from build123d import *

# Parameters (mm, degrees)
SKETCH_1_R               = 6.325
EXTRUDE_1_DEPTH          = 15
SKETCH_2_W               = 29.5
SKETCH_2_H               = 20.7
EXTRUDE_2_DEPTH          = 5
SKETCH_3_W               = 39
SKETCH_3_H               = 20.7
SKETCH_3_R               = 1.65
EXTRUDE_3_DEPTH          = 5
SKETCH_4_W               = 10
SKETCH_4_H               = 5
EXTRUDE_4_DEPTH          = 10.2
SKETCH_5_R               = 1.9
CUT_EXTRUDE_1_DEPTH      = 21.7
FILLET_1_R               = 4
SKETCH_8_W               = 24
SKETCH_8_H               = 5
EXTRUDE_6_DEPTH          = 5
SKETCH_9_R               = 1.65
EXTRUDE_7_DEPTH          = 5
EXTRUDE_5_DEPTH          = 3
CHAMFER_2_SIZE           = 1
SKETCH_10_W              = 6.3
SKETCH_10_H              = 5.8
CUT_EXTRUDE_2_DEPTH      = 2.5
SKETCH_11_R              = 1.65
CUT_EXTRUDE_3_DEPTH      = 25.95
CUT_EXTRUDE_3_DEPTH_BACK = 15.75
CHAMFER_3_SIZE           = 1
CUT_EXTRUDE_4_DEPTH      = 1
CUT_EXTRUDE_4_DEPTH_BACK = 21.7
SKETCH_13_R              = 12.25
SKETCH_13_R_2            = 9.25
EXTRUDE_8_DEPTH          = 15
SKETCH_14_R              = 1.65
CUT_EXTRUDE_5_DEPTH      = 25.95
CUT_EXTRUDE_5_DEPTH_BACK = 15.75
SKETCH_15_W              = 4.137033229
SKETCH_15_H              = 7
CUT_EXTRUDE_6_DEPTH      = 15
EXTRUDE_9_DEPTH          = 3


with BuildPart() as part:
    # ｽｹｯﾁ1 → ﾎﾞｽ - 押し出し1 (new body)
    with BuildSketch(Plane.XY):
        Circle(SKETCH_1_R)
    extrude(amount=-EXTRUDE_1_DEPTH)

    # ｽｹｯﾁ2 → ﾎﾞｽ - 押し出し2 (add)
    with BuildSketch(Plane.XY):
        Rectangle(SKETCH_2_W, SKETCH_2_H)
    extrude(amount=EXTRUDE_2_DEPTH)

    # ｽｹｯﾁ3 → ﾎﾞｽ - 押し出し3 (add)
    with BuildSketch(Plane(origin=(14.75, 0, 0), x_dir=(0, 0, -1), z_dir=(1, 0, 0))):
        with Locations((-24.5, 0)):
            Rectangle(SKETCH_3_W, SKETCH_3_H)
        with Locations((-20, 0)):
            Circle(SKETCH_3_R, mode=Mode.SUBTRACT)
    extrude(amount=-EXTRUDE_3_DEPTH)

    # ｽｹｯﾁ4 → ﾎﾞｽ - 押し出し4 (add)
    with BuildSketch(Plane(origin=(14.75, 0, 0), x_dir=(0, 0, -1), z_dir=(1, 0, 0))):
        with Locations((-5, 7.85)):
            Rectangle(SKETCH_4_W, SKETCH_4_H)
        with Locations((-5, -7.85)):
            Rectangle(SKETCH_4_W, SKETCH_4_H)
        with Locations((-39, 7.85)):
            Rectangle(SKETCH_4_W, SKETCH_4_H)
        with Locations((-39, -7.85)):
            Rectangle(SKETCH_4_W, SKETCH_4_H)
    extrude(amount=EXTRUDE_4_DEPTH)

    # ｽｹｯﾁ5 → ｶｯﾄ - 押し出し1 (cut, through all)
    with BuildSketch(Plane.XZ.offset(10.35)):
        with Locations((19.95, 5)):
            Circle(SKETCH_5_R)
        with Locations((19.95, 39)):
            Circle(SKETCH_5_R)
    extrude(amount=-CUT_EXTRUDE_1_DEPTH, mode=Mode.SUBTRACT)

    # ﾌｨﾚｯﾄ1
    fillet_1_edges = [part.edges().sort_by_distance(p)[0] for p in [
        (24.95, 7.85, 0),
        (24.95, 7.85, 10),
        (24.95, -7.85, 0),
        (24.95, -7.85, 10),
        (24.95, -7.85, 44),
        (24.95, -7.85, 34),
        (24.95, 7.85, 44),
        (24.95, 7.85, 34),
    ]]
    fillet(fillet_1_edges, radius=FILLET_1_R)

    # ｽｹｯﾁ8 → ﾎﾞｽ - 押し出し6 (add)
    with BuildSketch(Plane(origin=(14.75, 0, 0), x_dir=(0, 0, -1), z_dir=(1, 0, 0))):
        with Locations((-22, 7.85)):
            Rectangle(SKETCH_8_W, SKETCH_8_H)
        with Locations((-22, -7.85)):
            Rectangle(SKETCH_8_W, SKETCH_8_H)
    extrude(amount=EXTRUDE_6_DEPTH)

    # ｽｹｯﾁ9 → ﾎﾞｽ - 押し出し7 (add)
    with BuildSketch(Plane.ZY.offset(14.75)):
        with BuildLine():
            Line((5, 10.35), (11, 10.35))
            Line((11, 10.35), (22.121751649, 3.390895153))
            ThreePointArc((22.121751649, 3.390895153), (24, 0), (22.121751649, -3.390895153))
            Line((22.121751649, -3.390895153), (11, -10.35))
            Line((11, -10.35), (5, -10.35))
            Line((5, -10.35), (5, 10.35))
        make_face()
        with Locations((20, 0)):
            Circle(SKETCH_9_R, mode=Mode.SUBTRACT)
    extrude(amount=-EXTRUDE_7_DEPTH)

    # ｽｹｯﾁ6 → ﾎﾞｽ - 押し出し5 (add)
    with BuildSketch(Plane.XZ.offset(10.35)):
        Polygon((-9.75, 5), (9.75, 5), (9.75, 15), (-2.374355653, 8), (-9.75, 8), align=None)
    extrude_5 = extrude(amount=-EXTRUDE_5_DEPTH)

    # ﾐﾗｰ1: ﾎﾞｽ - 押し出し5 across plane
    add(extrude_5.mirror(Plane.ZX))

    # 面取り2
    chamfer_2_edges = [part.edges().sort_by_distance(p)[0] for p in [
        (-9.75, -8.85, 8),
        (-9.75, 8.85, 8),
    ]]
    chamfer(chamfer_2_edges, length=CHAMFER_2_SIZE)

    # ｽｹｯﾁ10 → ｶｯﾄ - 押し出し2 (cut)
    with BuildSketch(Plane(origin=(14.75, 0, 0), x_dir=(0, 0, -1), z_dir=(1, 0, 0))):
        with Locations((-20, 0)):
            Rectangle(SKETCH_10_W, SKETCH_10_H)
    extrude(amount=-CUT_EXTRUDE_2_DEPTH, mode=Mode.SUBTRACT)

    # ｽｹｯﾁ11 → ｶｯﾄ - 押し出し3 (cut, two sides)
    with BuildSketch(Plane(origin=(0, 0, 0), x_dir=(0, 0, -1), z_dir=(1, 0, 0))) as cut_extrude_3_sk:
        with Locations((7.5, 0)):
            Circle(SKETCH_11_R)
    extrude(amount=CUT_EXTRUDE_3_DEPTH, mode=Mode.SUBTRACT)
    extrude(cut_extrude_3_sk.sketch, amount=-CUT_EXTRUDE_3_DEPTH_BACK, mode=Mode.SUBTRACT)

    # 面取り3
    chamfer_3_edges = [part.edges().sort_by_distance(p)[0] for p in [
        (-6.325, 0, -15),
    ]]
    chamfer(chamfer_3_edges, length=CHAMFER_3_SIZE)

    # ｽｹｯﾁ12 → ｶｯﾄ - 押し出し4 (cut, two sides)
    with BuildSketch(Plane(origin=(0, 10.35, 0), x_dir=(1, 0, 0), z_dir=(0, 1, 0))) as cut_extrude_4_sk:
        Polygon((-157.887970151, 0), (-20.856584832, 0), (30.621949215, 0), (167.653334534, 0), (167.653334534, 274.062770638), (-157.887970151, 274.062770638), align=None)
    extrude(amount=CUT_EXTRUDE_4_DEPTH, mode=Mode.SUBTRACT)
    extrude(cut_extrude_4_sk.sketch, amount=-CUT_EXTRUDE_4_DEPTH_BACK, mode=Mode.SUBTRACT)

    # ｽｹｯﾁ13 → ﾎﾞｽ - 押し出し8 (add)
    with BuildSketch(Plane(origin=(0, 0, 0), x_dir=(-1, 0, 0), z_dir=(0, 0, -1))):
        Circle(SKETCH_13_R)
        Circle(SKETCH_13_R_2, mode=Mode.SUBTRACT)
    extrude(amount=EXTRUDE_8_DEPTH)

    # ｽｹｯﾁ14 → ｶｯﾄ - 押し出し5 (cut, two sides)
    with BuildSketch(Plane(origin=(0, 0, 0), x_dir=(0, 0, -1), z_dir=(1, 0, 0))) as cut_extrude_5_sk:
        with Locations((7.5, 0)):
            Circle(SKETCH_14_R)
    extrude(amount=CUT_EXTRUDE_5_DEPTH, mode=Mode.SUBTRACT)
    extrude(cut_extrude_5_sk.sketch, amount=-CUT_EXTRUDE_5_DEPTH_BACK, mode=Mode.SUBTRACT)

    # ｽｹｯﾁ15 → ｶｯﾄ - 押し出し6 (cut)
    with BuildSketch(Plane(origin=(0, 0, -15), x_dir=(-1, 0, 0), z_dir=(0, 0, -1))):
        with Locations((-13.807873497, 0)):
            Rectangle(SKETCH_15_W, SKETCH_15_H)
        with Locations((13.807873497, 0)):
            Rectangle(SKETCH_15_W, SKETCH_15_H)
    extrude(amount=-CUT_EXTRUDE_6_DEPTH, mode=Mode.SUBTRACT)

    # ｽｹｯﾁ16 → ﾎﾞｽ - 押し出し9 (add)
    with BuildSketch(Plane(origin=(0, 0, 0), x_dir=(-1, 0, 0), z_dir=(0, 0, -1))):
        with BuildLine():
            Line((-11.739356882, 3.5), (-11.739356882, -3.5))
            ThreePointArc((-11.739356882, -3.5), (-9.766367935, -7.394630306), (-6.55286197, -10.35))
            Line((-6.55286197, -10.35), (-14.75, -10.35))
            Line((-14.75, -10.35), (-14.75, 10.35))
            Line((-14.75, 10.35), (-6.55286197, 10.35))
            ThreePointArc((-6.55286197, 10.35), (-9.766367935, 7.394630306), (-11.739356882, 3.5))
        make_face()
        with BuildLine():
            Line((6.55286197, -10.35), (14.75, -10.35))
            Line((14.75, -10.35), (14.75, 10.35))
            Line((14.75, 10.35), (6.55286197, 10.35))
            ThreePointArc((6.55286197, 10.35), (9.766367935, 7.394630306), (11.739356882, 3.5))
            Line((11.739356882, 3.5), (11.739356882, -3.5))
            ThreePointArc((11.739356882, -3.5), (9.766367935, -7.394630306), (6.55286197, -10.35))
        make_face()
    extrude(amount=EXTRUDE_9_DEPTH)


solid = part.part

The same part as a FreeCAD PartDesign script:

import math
import FreeCAD as App
import Part
import Sketcher
Q = App.Units.Quantity


def edges_at(feature, points):
    """Names of the edges that pass closest to the given points."""
    edges = feature.Shape.Edges
    near = lambda p: min(range(len(edges)), key=lambda i: edges[i].distToShape(Part.Vertex(*p))[0])
    return sorted({f"Edge{near(p) + 1}" for p in points})

doc = App.newDocument("Part")
body = doc.addObject("PartDesign::Body", "Body")

sketch1 = body.newObject("Sketcher::SketchObject", "Sketch")
sketch1.AttachmentSupport = (doc.getObject("XY_Plane"), [""])
sketch1.MapMode = "FlatFace"
sketch1.addGeometry(Part.Circle(App.Vector(0, 0, 0), App.Vector(0, 0, 1), 6), False)
sketch1.addConstraint(Sketcher.Constraint("Coincident", 0, 3, -1, 1))
sketch1.addConstraint(Sketcher.Constraint("Diameter", 0, Q("12.65 mm")))
pad1 = body.newObject("PartDesign::Pad", "Pad")
pad1.Profile = sketch1
pad1.Length = 15
pad1.Reversed = True

sketch2 = body.newObject("Sketcher::SketchObject", "Sketch001")
sketch2.AttachmentSupport = (doc.getObject("XY_Plane"), [""])
sketch2.MapMode = "FlatFace"
sketch2.addGeometry(Part.LineSegment(App.Vector(-15, 10, 0), App.Vector(-15, -10, 0)), False)
sketch2.addGeometry(Part.LineSegment(App.Vector(-15, -10, 0), App.Vector(15, -10, 0)), False)
sketch2.addGeometry(Part.LineSegment(App.Vector(15, -10, 0), App.Vector(15, 10, 0)), False)
sketch2.addGeometry(Part.LineSegment(App.Vector(15, 10, 0), App.Vector(-15, 10, 0)), False)
sketch2.addConstraint(Sketcher.Constraint("Coincident", 0, 2, 1, 1))
sketch2.addConstraint(Sketcher.Constraint("Coincident", 1, 2, 2, 1))
sketch2.addConstraint(Sketcher.Constraint("Coincident", 2, 2, 3, 1))
sketch2.addConstraint(Sketcher.Constraint("Coincident", 3, 2, 0, 1))
sketch2.addConstraint(Sketcher.Constraint("Vertical", 0))
sketch2.addConstraint(Sketcher.Constraint("Horizontal", 1))
sketch2.addConstraint(Sketcher.Constraint("Vertical", 2))
sketch2.addConstraint(Sketcher.Constraint("Horizontal", 3))
sketch2.addConstraint(Sketcher.Constraint("Symmetric", 0, 2, 2, 2, -1, 1))
sketch2.addConstraint(Sketcher.Constraint("DistanceX", 1, 1, 1, 2, Q("29.5 mm")))
sketch2.addConstraint(Sketcher.Constraint("DistanceY", 0, 2, 0, 1, Q("20.7 mm")))
pad2 = body.newObject("PartDesign::Pad", "Pad001")
pad2.Profile = sketch2
pad2.Length = 5

sketch3 = body.newObject("Sketcher::SketchObject", "Sketch002")
sketch3.AttachmentSupport = (doc.getObject("YZ_Plane"), [""])
sketch3.MapMode = "FlatFace"
sketch3.AttachmentOffset = App.Placement(App.Vector(0, 0, 14.75), App.Rotation())
sketch3.addGeometry(Part.LineSegment(App.Vector(10.3, 44, 0), App.Vector(-10.3, 44, 0)), False)
sketch3.addGeometry(Part.LineSegment(App.Vector(-10.3, 44, 0), App.Vector(-10.3, 5, 0)), False)
sketch3.addGeometry(Part.LineSegment(App.Vector(-10.3, 5, 0), App.Vector(10.3, 5, 0)), False)
sketch3.addGeometry(Part.LineSegment(App.Vector(10.3, 5, 0), App.Vector(10.3, 44, 0)), False)
sketch3.addGeometry(Part.Circle(App.Vector(0, 20, 0), App.Vector(0, 0, 1), 1.6), False)
sketch3.addConstraint(Sketcher.Constraint("Coincident", 0, 2, 1, 1))
sketch3.addConstraint(Sketcher.Constraint("Coincident", 1, 2, 2, 1))
sketch3.addConstraint(Sketcher.Constraint("Coincident", 2, 2, 3, 1))
sketch3.addConstraint(Sketcher.Constraint("Coincident", 3, 2, 0, 1))
sketch3.addConstraint(Sketcher.Constraint("Horizontal", 0))
sketch3.addConstraint(Sketcher.Constraint("Vertical", 1))
sketch3.addConstraint(Sketcher.Constraint("Horizontal", 2))
sketch3.addConstraint(Sketcher.Constraint("Vertical", 3))
sketch3.addConstraint(Sketcher.Constraint("PointOnObject", 4, 3, -2))
sketch3.addConstraint(Sketcher.Constraint("Diameter", 4, Q("3.3 mm")))
sketch3.addConstraint(Sketcher.Constraint("DistanceY", 1, 2, 1, 1, Q("39 mm")))
sketch3.addConstraint(Sketcher.Constraint("DistanceX", 0, 2, 0, 1, Q("20.7 mm")))
sketch3.addConstraint(Sketcher.Constraint("DistanceY", -1, 1, 4, 3, Q("20 mm")))
sketch3.addConstraint(Sketcher.Constraint("DistanceY", -1, 1, 0, 2, Q("44 mm")))
sketch3.addConstraint(Sketcher.Constraint("DistanceX", 0, 2, -1, 1, Q("10.35 mm")))
pad3 = body.newObject("PartDesign::Pad", "Pad002")
pad3.Profile = sketch3
pad3.Length = 5
pad3.Reversed = True

sketch4 = body.newObject("Sketcher::SketchObject", "Sketch003")
sketch4.AttachmentSupport = (doc.getObject("YZ_Plane"), [""])
sketch4.MapMode = "FlatFace"
sketch4.AttachmentOffset = App.Placement(App.Vector(0, 0, 14.75), App.Rotation())
sketch4.addGeometry(Part.LineSegment(App.Vector(10, 10, 0), App.Vector(5, 10, 0)), False)
sketch4.addGeometry(Part.LineSegment(App.Vector(5, 10, 0), App.Vector(5, 0, 0)), False)
sketch4.addGeometry(Part.LineSegment(App.Vector(5, 0, 0), App.Vector(10, 0, 0)), False)
sketch4.addGeometry(Part.LineSegment(App.Vector(10, 0, 0), App.Vector(10, 10, 0)), False)
sketch4.addGeometry(Part.LineSegment(App.Vector(-5, 10, 0), App.Vector(-10, 10, 0)), False)
sketch4.addGeometry(Part.LineSegment(App.Vector(-10, 10, 0), App.Vector(-10, 0, 0)), False)
sketch4.addGeometry(Part.LineSegment(App.Vector(-10, 0, 0), App.Vector(-5, 0, 0)), False)
sketch4.addGeometry(Part.LineSegment(App.Vector(-5, 0, 0), App.Vector(-5, 10, 0)), False)
sketch4.addGeometry(Part.LineSegment(App.Vector(10, 44, 0), App.Vector(5, 44, 0)), False)
sketch4.addGeometry(Part.LineSegment(App.Vector(5, 44, 0), App.Vector(5, 34, 0)), False)
sketch4.addGeometry(Part.LineSegment(App.Vector(5, 34, 0), App.Vector(10, 34, 0)), False)
sketch4.addGeometry(Part.LineSegment(App.Vector(10, 34, 0), App.Vector(10, 44, 0)), False)
sketch4.addGeometry(Part.LineSegment(App.Vector(-5, 44, 0), App.Vector(-10, 44, 0)), False)
sketch4.addGeometry(Part.LineSegment(App.Vector(-10, 44, 0), App.Vector(-10, 34, 0)), False)
sketch4.addGeometry(Part.LineSegment(App.Vector(-10, 34, 0), App.Vector(-5, 34, 0)), False)
sketch4.addGeometry(Part.LineSegment(App.Vector(-5, 34, 0), App.Vector(-5, 44, 0)), False)
sketch4.addConstraint(Sketcher.Constraint("Coincident", 0, 2, 1, 1))
sketch4.addConstraint(Sketcher.Constraint("Coincident", 1, 2, 2, 1))
sketch4.addConstraint(Sketcher.Constraint("Coincident", 2, 2, 3, 1))
sketch4.addConstraint(Sketcher.Constraint("Coincident", 3, 2, 0, 1))
sketch4.addConstraint(Sketcher.Constraint("Coincident", 4, 2, 5, 1))
sketch4.addConstraint(Sketcher.Constraint("Coincident", 5, 2, 6, 1))
sketch4.addConstraint(Sketcher.Constraint("Coincident", 6, 2, 7, 1))
sketch4.addConstraint(Sketcher.Constraint("Coincident", 7, 2, 4, 1))
sketch4.addConstraint(Sketcher.Constraint("Coincident", 8, 2, 9, 1))
sketch4.addConstraint(Sketcher.Constraint("Coincident", 9, 2, 10, 1))
sketch4.addConstraint(Sketcher.Constraint("Coincident", 10, 2, 11, 1))
sketch4.addConstraint(Sketcher.Constraint("Coincident", 11, 2, 8, 1))
sketch4.addConstraint(Sketcher.Constraint("Coincident", 12, 2, 13, 1))
sketch4.addConstraint(Sketcher.Constraint("Coincident", 13, 2, 14, 1))
sketch4.addConstraint(Sketcher.Constraint("Coincident", 14, 2, 15, 1))
sketch4.addConstraint(Sketcher.Constraint("Coincident", 15, 2, 12, 1))
sketch4.addConstraint(Sketcher.Constraint("Horizontal", 0))
sketch4.addConstraint(Sketcher.Constraint("Vertical", 1))
sketch4.addConstraint(Sketcher.Constraint("Horizontal", 2))
sketch4.addConstraint(Sketcher.Constraint("Vertical", 3))
sketch4.addConstraint(Sketcher.Constraint("Horizontal", 4))
sketch4.addConstraint(Sketcher.Constraint("Vertical", 5))
sketch4.addConstraint(Sketcher.Constraint("Horizontal", 6))
sketch4.addConstraint(Sketcher.Constraint("Vertical", 7))
sketch4.addConstraint(Sketcher.Constraint("Horizontal", 8))
sketch4.addConstraint(Sketcher.Constraint("Vertical", 9))
sketch4.addConstraint(Sketcher.Constraint("Horizontal", 10))
sketch4.addConstraint(Sketcher.Constraint("Vertical", 11))
sketch4.addConstraint(Sketcher.Constraint("Horizontal", 12))
sketch4.addConstraint(Sketcher.Constraint("Vertical", 13))
sketch4.addConstraint(Sketcher.Constraint("Horizontal", 14))
sketch4.addConstraint(Sketcher.Constraint("Vertical", 15))
sketch4.addConstraint(Sketcher.Constraint("Symmetric", 2, 2, 5, 2, -1, 1))
sketch4.addConstraint(Sketcher.Constraint("Symmetric", 1, 2, 6, 2, -2))
sketch4.addConstraint(Sketcher.Constraint("Symmetric", 11, 2, 12, 2, -2))
sketch4.addConstraint(Sketcher.Constraint("Symmetric", 9, 2, 14, 2, -2))
sketch4.addConstraint(Sketcher.Constraint("Horizontal", 3, 2, 4, 2))
sketch4.addConstraint(Sketcher.Constraint("Vertical", 1, 2, 8, 2))
sketch4.addConstraint(Sketcher.Constraint("Vertical", 3, 2, 10, 2))
sketch4.addConstraint(Sketcher.Constraint("Equal", 7, 9))
sketch4.addConstraint(Sketcher.Constraint("DistanceX", 0, 2, 0, 1, Q("5 mm")))
sketch4.addConstraint(Sketcher.Constraint("DistanceY", 1, 2, 1, 1, Q("10 mm")))
sketch4.addConstraint(Sketcher.Constraint("DistanceY", -1, 1, 8, 2, Q("44 mm")))
sketch4.addConstraint(Sketcher.Constraint("DistanceX", 4, 2, 0, 2, Q("15.7 mm")))
pad4 = body.newObject("PartDesign::Pad", "Pad003")
pad4.Profile = sketch4
pad4.Length = 10.2

sketch5 = body.newObject("Sketcher::SketchObject", "Sketch004")
sketch5.AttachmentSupport = (doc.getObject("XZ_Plane"), [""])
sketch5.MapMode = "FlatFace"
sketch5.AttachmentOffset = App.Placement(App.Vector(0, 0, 10.35), App.Rotation())
sketch5.addGeometry(Part.Circle(App.Vector(19.9, 5, 0), App.Vector(0, 0, 1), 1.9), False)
sketch5.addGeometry(Part.Circle(App.Vector(19.9, 39, 0), App.Vector(0, 0, 1), 1.9), False)
sketch5.addConstraint(Sketcher.Constraint("Equal", 0, 1))
sketch5.addConstraint(Sketcher.Constraint("Vertical", 0, 3, 1, 3))
sketch5.addConstraint(Sketcher.Constraint("Diameter", 0, Q("3.8 mm")))
sketch5.addConstraint(Sketcher.Constraint("DistanceY", -1, 1, 0, 3, Q("5 mm")))
sketch5.addConstraint(Sketcher.Constraint("DistanceY", -1, 1, 1, 3, Q("39 mm")))
sketch5.addConstraint(Sketcher.Constraint("DistanceX", -1, 1, 0, 3, Q("19.95 mm")))
pocket1 = body.newObject("PartDesign::Pocket", "Pocket")
pocket1.Profile = sketch5
pocket1.Type = "ThroughAll"
doc.recompute()

fillet = body.newObject("PartDesign::Fillet", "Fillet")
fillet.Base = (pocket1, edges_at(pocket1, [
    (24.95, 7.85, 0),
    (24.95, 7.85, 10),
    (24.95, -7.85, 0),
    (24.95, -7.85, 10),
    (24.95, -7.85, 44),
    (24.95, -7.85, 34),
    (24.95, 7.85, 44),
    (24.95, 7.85, 34),
]))
fillet.Radius = 4

sketch6 = body.newObject("Sketcher::SketchObject", "Sketch005")
sketch6.AttachmentSupport = (doc.getObject("YZ_Plane"), [""])
sketch6.MapMode = "FlatFace"
sketch6.AttachmentOffset = App.Placement(App.Vector(0, 0, 14.75), App.Rotation())
sketch6.addGeometry(Part.LineSegment(App.Vector(10, 34, 0), App.Vector(5, 34, 0)), False)
sketch6.addGeometry(Part.LineSegment(App.Vector(5, 34, 0), App.Vector(5, 10, 0)), False)
sketch6.addGeometry(Part.LineSegment(App.Vector(5, 10, 0), App.Vector(10, 10, 0)), False)
sketch6.addGeometry(Part.LineSegment(App.Vector(10, 10, 0), App.Vector(10, 34, 0)), False)
sketch6.addGeometry(Part.LineSegment(App.Vector(-5, 34, 0), App.Vector(-10, 34, 0)), False)
sketch6.addGeometry(Part.LineSegment(App.Vector(-10, 34, 0), App.Vector(-10, 10, 0)), False)
sketch6.addGeometry(Part.LineSegment(App.Vector(-10, 10, 0), App.Vector(-5, 10, 0)), False)
sketch6.addGeometry(Part.LineSegment(App.Vector(-5, 10, 0), App.Vector(-5, 34, 0)), False)
sketch6.addConstraint(Sketcher.Constraint("Coincident", 0, 2, 1, 1))
sketch6.addConstraint(Sketcher.Constraint("Coincident", 1, 2, 2, 1))
sketch6.addConstraint(Sketcher.Constraint("Coincident", 2, 2, 3, 1))
sketch6.addConstraint(Sketcher.Constraint("Coincident", 3, 2, 0, 1))
sketch6.addConstraint(Sketcher.Constraint("Coincident", 4, 2, 5, 1))
sketch6.addConstraint(Sketcher.Constraint("Coincident", 5, 2, 6, 1))
sketch6.addConstraint(Sketcher.Constraint("Coincident", 6, 2, 7, 1))
sketch6.addConstraint(Sketcher.Constraint("Coincident", 7, 2, 4, 1))
sketch6.addConstraint(Sketcher.Constraint("Horizontal", 0))
sketch6.addConstraint(Sketcher.Constraint("Vertical", 1))
sketch6.addConstraint(Sketcher.Constraint("Horizontal", 2))
sketch6.addConstraint(Sketcher.Constraint("Vertical", 3))
sketch6.addConstraint(Sketcher.Constraint("Horizontal", 4))
sketch6.addConstraint(Sketcher.Constraint("Vertical", 5))
sketch6.addConstraint(Sketcher.Constraint("Horizontal", 6))
sketch6.addConstraint(Sketcher.Constraint("Vertical", 7))
sketch6.addConstraint(Sketcher.Constraint("Symmetric", 3, 2, 4, 2, -2))
sketch6.addConstraint(Sketcher.Constraint("Symmetric", 1, 2, 6, 2, -2))
sketch6.addConstraint(Sketcher.Constraint("DistanceX", 0, 2, 0, 1, Q("5 mm")))
sketch6.addConstraint(Sketcher.Constraint("DistanceY", 1, 2, 1, 1, Q("24 mm")))
sketch6.addConstraint(Sketcher.Constraint("DistanceY", -1, 1, 0, 2, Q("34 mm")))
sketch6.addConstraint(Sketcher.Constraint("DistanceX", 4, 2, 0, 2, Q("15.7 mm")))
pad5 = body.newObject("PartDesign::Pad", "Pad004")
pad5.Profile = sketch6
pad5.Length = 5

sketch7 = body.newObject("Sketcher::SketchObject", "Sketch006")
sketch7.AttachmentSupport = (doc.getObject("YZ_Plane"), [""])
sketch7.MapMode = "FlatFace"
sketch7.AttachmentOffset = App.Placement(App.Vector(0, 0, -14.75), App.Rotation())
sketch7.addGeometry(Part.LineSegment(App.Vector(10.3, 11, 0), App.Vector(10.3, 5, 0)), False)
sketch7.addGeometry(Part.LineSegment(App.Vector(10.3, 5, 0), App.Vector(-10.3, 5, 0)), False)
sketch7.addGeometry(Part.LineSegment(App.Vector(-10.3, 5, 0), App.Vector(-10.3, 11, 0)), False)
sketch7.addGeometry(Part.LineSegment(App.Vector(-10.3, 11, 0), App.Vector(-3.4, 22.1, 0)), False)
sketch7.addGeometry(Part.ArcOfCircle(Part.Circle(App.Vector(0, 20, 0), App.Vector(0, 0, 1), 4), math.radians(32), math.radians(148)), False)
sketch7.addGeometry(Part.LineSegment(App.Vector(3.4, 22.1, 0), App.Vector(10.3, 11, 0)), False)
sketch7.addGeometry(Part.Circle(App.Vector(0, 20, 0), App.Vector(0, 0, 1), 1.6), False)
sketch7.addConstraint(Sketcher.Constraint("Coincident", 0, 2, 1, 1))
sketch7.addConstraint(Sketcher.Constraint("Coincident", 1, 2, 2, 1))
sketch7.addConstraint(Sketcher.Constraint("Coincident", 2, 2, 3, 1))
sketch7.addConstraint(Sketcher.Constraint("Tangent", 3, 2, 4, 2))
sketch7.addConstraint(Sketcher.Constraint("Tangent", 4, 1, 5, 1))
sketch7.addConstraint(Sketcher.Constraint("Coincident", 5, 2, 0, 1))
sketch7.addConstraint(Sketcher.Constraint("Vertical", 0))
sketch7.addConstraint(Sketcher.Constraint("Horizontal", 1))
sketch7.addConstraint(Sketcher.Constraint("Vertical", 2))
sketch7.addConstraint(Sketcher.Constraint("Coincident", 6, 3, 4, 3))
sketch7.addConstraint(Sketcher.Constraint("Symmetric", 3, 2, 4, 1, -2))
sketch7.addConstraint(Sketcher.Constraint("Horizontal", 2, 2, 5, 2))
sketch7.addConstraint(Sketcher.Constraint("Radius", 4, Q("4 mm")))
sketch7.addConstraint(Sketcher.Constraint("Diameter", 6, Q("3.3 mm")))
sketch7.addConstraint(Sketcher.Constraint("DistanceY", 0, 2, 0, 1, Q("6 mm")))
sketch7.addConstraint(Sketcher.Constraint("DistanceX", 1, 2, 1, 1, Q("20.7 mm")))
sketch7.addConstraint(Sketcher.Constraint("DistanceY", -1, 1, 4, 3, Q("20 mm")))
sketch7.addConstraint(Sketcher.Constraint("DistanceY", -1, 1, 0, 2, Q("5 mm")))
pad6 = body.newObject("PartDesign::Pad", "Pad005")
pad6.Profile = sketch7
pad6.Length = 5

sketch8 = body.newObject("Sketcher::SketchObject", "Sketch007")
sketch8.AttachmentSupport = (doc.getObject("XZ_Plane"), [""])
sketch8.MapMode = "FlatFace"
sketch8.AttachmentOffset = App.Placement(App.Vector(0, 0, 10.35), App.Rotation())
sketch8.addGeometry(Part.LineSegment(App.Vector(-9.8, 5, 0), App.Vector(9.8, 5, 0)), False)
sketch8.addGeometry(Part.LineSegment(App.Vector(9.8, 5, 0), App.Vector(9.8, 15, 0)), False)
sketch8.addGeometry(Part.LineSegment(App.Vector(9.8, 15, 0), App.Vector(-2.4, 8, 0)), False)
sketch8.addGeometry(Part.LineSegment(App.Vector(-2.4, 8, 0), App.Vector(-9.8, 8, 0)), False)
sketch8.addGeometry(Part.LineSegment(App.Vector(-9.8, 8, 0), App.Vector(-9.8, 5, 0)), False)
sketch8.addConstraint(Sketcher.Constraint("Coincident", 0, 2, 1, 1))
sketch8.addConstraint(Sketcher.Constraint("Coincident", 1, 2, 2, 1))
sketch8.addConstraint(Sketcher.Constraint("Coincident", 2, 2, 3, 1))
sketch8.addConstraint(Sketcher.Constraint("Coincident", 3, 2, 4, 1))
sketch8.addConstraint(Sketcher.Constraint("Coincident", 4, 2, 0, 1))
sketch8.addConstraint(Sketcher.Constraint("Horizontal", 0))
sketch8.addConstraint(Sketcher.Constraint("Vertical", 1))
sketch8.addConstraint(Sketcher.Constraint("Horizontal", 3))
sketch8.addConstraint(Sketcher.Constraint("Vertical", 4))
sketch8.addConstraint(Sketcher.Constraint("DistanceY", 1, 1, 1, 2, Q("10 mm")))
sketch8.addConstraint(Sketcher.Constraint("DistanceY", 4, 2, 4, 1, Q("3 mm")))
sketch8.addConstraint(Sketcher.Constraint("Angle", 2, Q("-150 deg")))
sketch8.addConstraint(Sketcher.Constraint("DistanceX", 0, 1, 0, 2, Q("19.5 mm")))
sketch8.addConstraint(Sketcher.Constraint("DistanceY", -1, 1, 0, 2, Q("5 mm")))
sketch8.addConstraint(Sketcher.Constraint("DistanceX", -1, 1, 0, 2, Q("9.75 mm")))
pad7 = body.newObject("PartDesign::Pad", "Pad006")
pad7.Profile = sketch8
pad7.Length = 3
pad7.Reversed = True
doc.recompute()

mirrored = body.newObject("PartDesign::Mirrored", "Mirrored")
mirrored.Originals = [pad7]
mirrored.MirrorPlane = (doc.getObject("XZ_Plane"), [""])
body.Tip = mirrored
doc.recompute()

chamfer = body.newObject("PartDesign::Chamfer", "Chamfer")
chamfer.Base = (mirrored, edges_at(mirrored, [(-9.75, -8.85, 8), (-9.75, 8.85, 8)]))
chamfer.Size = 1

sketch9 = body.newObject("Sketcher::SketchObject", "Sketch008")
sketch9.AttachmentSupport = (doc.getObject("YZ_Plane"), [""])
sketch9.MapMode = "FlatFace"
sketch9.AttachmentOffset = App.Placement(App.Vector(0, 0, 14.75), App.Rotation())
sketch9.addGeometry(Part.LineSegment(App.Vector(3, 23, 0), App.Vector(-3, 23, 0)), False)
sketch9.addGeometry(Part.LineSegment(App.Vector(-3, 23, 0), App.Vector(-3, 17, 0)), False)
sketch9.addGeometry(Part.LineSegment(App.Vector(-3, 17, 0), App.Vector(3, 17, 0)), False)
sketch9.addGeometry(Part.LineSegment(App.Vector(3, 17, 0), App.Vector(3, 23, 0)), False)
sketch9.addConstraint(Sketcher.Constraint("Coincident", 0, 2, 1, 1))
sketch9.addConstraint(Sketcher.Constraint("Coincident", 1, 2, 2, 1))
sketch9.addConstraint(Sketcher.Constraint("Coincident", 2, 2, 3, 1))
sketch9.addConstraint(Sketcher.Constraint("Coincident", 3, 2, 0, 1))
sketch9.addConstraint(Sketcher.Constraint("Horizontal", 0))
sketch9.addConstraint(Sketcher.Constraint("Vertical", 1))
sketch9.addConstraint(Sketcher.Constraint("Horizontal", 2))
sketch9.addConstraint(Sketcher.Constraint("Vertical", 3))
sketch9.addConstraint(Sketcher.Constraint("DistanceX", 0, 2, 0, 1, Q("5.8 mm")))
sketch9.addConstraint(Sketcher.Constraint("DistanceY", 1, 2, 1, 1, Q("6.3 mm")))
sketch9.addConstraint(Sketcher.Constraint("DistanceX", 0, 2, -1, 1, Q("2.9 mm")))
sketch9.addConstraint(Sketcher.Constraint("DistanceY", -1, 1, 0, 2, Q("23.15 mm")))
pocket2 = body.newObject("PartDesign::Pocket", "Pocket001")
pocket2.Profile = sketch9
pocket2.Length = 2.5

sketch10 = body.newObject("Sketcher::SketchObject", "Sketch009")
sketch10.AttachmentSupport = (doc.getObject("YZ_Plane"), [""])
sketch10.MapMode = "FlatFace"
sketch10.addGeometry(Part.Circle(App.Vector(0, -7.5, 0), App.Vector(0, 0, 1), 1.6), False)
sketch10.addConstraint(Sketcher.Constraint("PointOnObject", 0, 3, -2))
sketch10.addConstraint(Sketcher.Constraint("Diameter", 0, Q("3.3 mm")))
sketch10.addConstraint(Sketcher.Constraint("DistanceY", 0, 3, -1, 1, Q("7.5 mm")))
pocket3 = body.newObject("PartDesign::Pocket", "Pocket002")
pocket3.Profile = sketch10
pocket3.Type = "ThroughAll"
pocket3.Midplane = True
doc.recompute()

chamfer2 = body.newObject("PartDesign::Chamfer", "Chamfer001")
chamfer2.Base = (pocket3, edges_at(pocket3, [(-6.325, 0, -15)]))
chamfer2.Size = 1

sketch11 = body.newObject("Sketcher::SketchObject", "Sketch010")
sketch11.AttachmentSupport = (doc.getObject("XZ_Plane"), [""])
sketch11.MapMode = "FlatFace"
sketch11.AttachmentOffset = App.Placement(App.Vector(0, 0, -10.35), App.Rotation())
sketch11.addGeometry(Part.LineSegment(App.Vector(-158, 0, 0), App.Vector(168, 0, 0)), False)
sketch11.addGeometry(Part.LineSegment(App.Vector(168, 0, 0), App.Vector(168, -274, 0)), False)
sketch11.addGeometry(Part.LineSegment(App.Vector(168, -274, 0), App.Vector(-158, -274, 0)), False)
sketch11.addGeometry(Part.LineSegment(App.Vector(-158, -274, 0), App.Vector(-158, 0, 0)), False)
sketch11.addConstraint(Sketcher.Constraint("Coincident", 0, 2, 1, 1))
sketch11.addConstraint(Sketcher.Constraint("Coincident", 1, 2, 2, 1))
sketch11.addConstraint(Sketcher.Constraint("Coincident", 2, 2, 3, 1))
sketch11.addConstraint(Sketcher.Constraint("Coincident", 3, 2, 0, 1))
sketch11.addConstraint(Sketcher.Constraint("Horizontal", 0))
sketch11.addConstraint(Sketcher.Constraint("Vertical", 1))
sketch11.addConstraint(Sketcher.Constraint("Horizontal", 2))
sketch11.addConstraint(Sketcher.Constraint("Vertical", 3))
sketch11.addConstraint(Sketcher.Constraint("PointOnObject", 0, 2, -1))
sketch11.addConstraint(Sketcher.Constraint("DistanceY", 1, 2, 1, 1, Q("274.062771 mm")))
sketch11.addConstraint(Sketcher.Constraint("DistanceX", 0, 1, 0, 2, Q("325.541305 mm")))
sketch11.addConstraint(Sketcher.Constraint("DistanceX", 2, 2, -1, 1, Q("157.88797 mm")))
pocket4 = body.newObject("PartDesign::Pocket", "Pocket003")
pocket4.Profile = sketch11
pocket4.Type = "ThroughAll"
pocket4.Midplane = True

sketch12 = body.newObject("Sketcher::SketchObject", "Sketch011")
sketch12.AttachmentSupport = (doc.getObject("XY_Plane"), [""])
sketch12.MapMode = "FlatFace"
sketch12.addGeometry(Part.Circle(App.Vector(0, 0, 0), App.Vector(0, 0, 1), 12), False)
sketch12.addGeometry(Part.Circle(App.Vector(0, 0, 0), App.Vector(0, 0, 1), 9), False)
sketch12.addConstraint(Sketcher.Constraint("Coincident", 0, 3, -1, 1))
sketch12.addConstraint(Sketcher.Constraint("Coincident", 1, 3, -1, 1))
sketch12.addConstraint(Sketcher.Constraint("Diameter", 0, Q("24.5 mm")))
sketch12.addConstraint(Sketcher.Constraint("Diameter", 1, Q("18.5 mm")))
pad8 = body.newObject("PartDesign::Pad", "Pad007")
pad8.Profile = sketch12
pad8.Length = 15
pad8.Reversed = True

sketch13 = body.newObject("Sketcher::SketchObject", "Sketch012")
sketch13.AttachmentSupport = (doc.getObject("YZ_Plane"), [""])
sketch13.MapMode = "FlatFace"
sketch13.addGeometry(Part.Circle(App.Vector(0, -7.5, 0), App.Vector(0, 0, 1), 1.6), False)
sketch13.addConstraint(Sketcher.Constraint("PointOnObject", 0, 3, -2))
sketch13.addConstraint(Sketcher.Constraint("Diameter", 0, Q("3.3 mm")))
sketch13.addConstraint(Sketcher.Constraint("DistanceY", 0, 3, -1, 1, Q("7.5 mm")))
pocket5 = body.newObject("PartDesign::Pocket", "Pocket004")
pocket5.Profile = sketch13
pocket5.Type = "ThroughAll"
pocket5.Midplane = True

sketch14 = body.newObject("Sketcher::SketchObject", "Sketch013")
sketch14.AttachmentSupport = (doc.getObject("XY_Plane"), [""])
sketch14.MapMode = "FlatFace"
sketch14.AttachmentOffset = App.Placement(App.Vector(0, 0, -15), App.Rotation())
sketch14.addGeometry(Part.LineSegment(App.Vector(15.9, 3.5, 0), App.Vector(15.9, -3.5, 0)), False)
sketch14.addGeometry(Part.LineSegment(App.Vector(15.9, -3.5, 0), App.Vector(11.7, -3.5, 0)), False)
sketch14.addGeometry(Part.LineSegment(App.Vector(11.7, -3.5, 0), App.Vector(11.7, 3.5, 0)), False)
sketch14.addGeometry(Part.LineSegment(App.Vector(11.7, 3.5, 0), App.Vector(15.9, 3.5, 0)), False)
sketch14.addGeometry(Part.LineSegment(App.Vector(-11.7, 3.5, 0), App.Vector(-11.7, -3.5, 0)), False)
sketch14.addGeometry(Part.LineSegment(App.Vector(-11.7, -3.5, 0), App.Vector(-15.9, -3.5, 0)), False)
sketch14.addGeometry(Part.LineSegment(App.Vector(-15.9, -3.5, 0), App.Vector(-15.9, 3.5, 0)), False)
sketch14.addGeometry(Part.LineSegment(App.Vector(-15.9, 3.5, 0), App.Vector(-11.7, 3.5, 0)), False)
sketch14.addConstraint(Sketcher.Constraint("Coincident", 0, 2, 1, 1))
sketch14.addConstraint(Sketcher.Constraint("Coincident", 1, 2, 2, 1))
sketch14.addConstraint(Sketcher.Constraint("Coincident", 2, 2, 3, 1))
sketch14.addConstraint(Sketcher.Constraint("Coincident", 3, 2, 0, 1))
sketch14.addConstraint(Sketcher.Constraint("Coincident", 4, 2, 5, 1))
sketch14.addConstraint(Sketcher.Constraint("Coincident", 5, 2, 6, 1))
sketch14.addConstraint(Sketcher.Constraint("Coincident", 6, 2, 7, 1))
sketch14.addConstraint(Sketcher.Constraint("Coincident", 7, 2, 4, 1))
sketch14.addConstraint(Sketcher.Constraint("Vertical", 0))
sketch14.addConstraint(Sketcher.Constraint("Horizontal", 1))
sketch14.addConstraint(Sketcher.Constraint("Vertical", 2))
sketch14.addConstraint(Sketcher.Constraint("Horizontal", 3))
sketch14.addConstraint(Sketcher.Constraint("Vertical", 4))
sketch14.addConstraint(Sketcher.Constraint("Horizontal", 5))
sketch14.addConstraint(Sketcher.Constraint("Vertical", 6))
sketch14.addConstraint(Sketcher.Constraint("Horizontal", 7))
sketch14.addConstraint(Sketcher.Constraint("Symmetric", 2, 2, 4, 2, -1, 1))
sketch14.addConstraint(Sketcher.Constraint("Symmetric", 0, 2, 6, 2, -1, 1))
sketch14.addConstraint(Sketcher.Constraint("Horizontal", 1, 2, 4, 2))
sketch14.addConstraint(Sketcher.Constraint("DistanceY", 0, 2, 0, 1, Q("7 mm")))
sketch14.addConstraint(Sketcher.Constraint("DistanceX", 1, 2, 1, 1, Q("4.137033 mm")))
sketch14.addConstraint(Sketcher.Constraint("DistanceX", -1, 1, 0, 2, Q("15.87639 mm")))
pocket6 = body.newObject("PartDesign::Pocket", "Pocket005")
pocket6.Profile = sketch14
pocket6.Length = 15
pocket6.Reversed = True

sketch15 = body.newObject("Sketcher::SketchObject", "Sketch014")
sketch15.AttachmentSupport = (doc.getObject("XY_Plane"), [""])
sketch15.MapMode = "FlatFace"
sketch15.addGeometry(Part.LineSegment(App.Vector(12, -4, 0), App.Vector(12, 4, 0)), False)
sketch15.addGeometry(Part.ArcOfCircle(Part.Circle(App.Vector(0, 0, 0), App.Vector(0, 0, 1), 12), math.radians(17), math.radians(58)), False)
sketch15.addGeometry(Part.LineSegment(App.Vector(7, 10, 0), App.Vector(15, 10, 0)), False)
sketch15.addGeometry(Part.LineSegment(App.Vector(15, 10, 0), App.Vector(15, -10, 0)), False)
sketch15.addGeometry(Part.LineSegment(App.Vector(15, -10, 0), App.Vector(7, -10, 0)), False)
sketch15.addGeometry(Part.ArcOfCircle(Part.Circle(App.Vector(0, 0, 0), App.Vector(0, 0, 1), 12), math.radians(-58), math.radians(-17)), False)
sketch15.addGeometry(Part.LineSegment(App.Vector(-7, -10, 0), App.Vector(-15, -10, 0)), False)
sketch15.addGeometry(Part.LineSegment(App.Vector(-15, -10, 0), App.Vector(-15, 10, 0)), False)
sketch15.addGeometry(Part.LineSegment(App.Vector(-15, 10, 0), App.Vector(-7, 10, 0)), False)
sketch15.addGeometry(Part.ArcOfCircle(Part.Circle(App.Vector(0, 0, 0), App.Vector(0, 0, 1), 12), math.radians(122), math.radians(163)), False)
sketch15.addGeometry(Part.LineSegment(App.Vector(-12, 4, 0), App.Vector(-12, -4, 0)), False)
sketch15.addGeometry(Part.ArcOfCircle(Part.Circle(App.Vector(0, 0, 0), App.Vector(0, 0, 1), 12), math.radians(-163), math.radians(-122)), False)
sketch15.addConstraint(Sketcher.Constraint("Coincident", 0, 2, 1, 1))
sketch15.addConstraint(Sketcher.Constraint("Coincident", 1, 2, 2, 1))
sketch15.addConstraint(Sketcher.Constraint("Coincident", 2, 2, 3, 1))
sketch15.addConstraint(Sketcher.Constraint("Coincident", 3, 2, 4, 1))
sketch15.addConstraint(Sketcher.Constraint("Coincident", 4, 2, 5, 1))
sketch15.addConstraint(Sketcher.Constraint("Coincident", 5, 2, 0, 1))
sketch15.addConstraint(Sketcher.Constraint("Coincident", 6, 2, 7, 1))
sketch15.addConstraint(Sketcher.Constraint("Coincident", 7, 2, 8, 1))
sketch15.addConstraint(Sketcher.Constraint("Coincident", 8, 2, 9, 1))
sketch15.addConstraint(Sketcher.Constraint("Coincident", 9, 2, 10, 1))
sketch15.addConstraint(Sketcher.Constraint("Coincident", 10, 2, 11, 1))
sketch15.addConstraint(Sketcher.Constraint("Coincident", 11, 2, 6, 1))
sketch15.addConstraint(Sketcher.Constraint("Vertical", 0))
sketch15.addConstraint(Sketcher.Constraint("Horizontal", 2))
sketch15.addConstraint(Sketcher.Constraint("Vertical", 3))
sketch15.addConstraint(Sketcher.Constraint("Horizontal", 4))
sketch15.addConstraint(Sketcher.Constraint("Horizontal", 6))
sketch15.addConstraint(Sketcher.Constraint("Vertical", 7))
sketch15.addConstraint(Sketcher.Constraint("Horizontal", 8))
sketch15.addConstraint(Sketcher.Constraint("Vertical", 10))
sketch15.addConstraint(Sketcher.Constraint("Coincident", 1, 3, -1, 1))
sketch15.addConstraint(Sketcher.Constraint("Coincident", 5, 3, -1, 1))
sketch15.addConstraint(Sketcher.Constraint("Coincident", 9, 3, -1, 1))
sketch15.addConstraint(Sketcher.Constraint("Coincident", 11, 3, -1, 1))
sketch15.addConstraint(Sketcher.Constraint("Equal", 1, 5))
sketch15.addConstraint(Sketcher.Constraint("Equal", 5, 9))
sketch15.addConstraint(Sketcher.Constraint("Equal", 9, 11))
sketch15.addConstraint(Sketcher.Constraint("Symmetric", 2, 2, 6, 2, -1, 1))
sketch15.addConstraint(Sketcher.Constraint("Horizontal", 4, 2, 6, 2))
sketch15.addConstraint(Sketcher.Constraint("Horizontal", 2, 2, 7, 2))
sketch15.addConstraint(Sketcher.Constraint("Horizontal", 0, 2, 9, 2))
sketch15.addConstraint(Sketcher.Constraint("DistanceY", 0, 1, 0, 2, Q("7 mm")))
sketch15.addConstraint(Sketcher.Constraint("Radius", 1, Q("12.25 mm")))
sketch15.addConstraint(Sketcher.Constraint("DistanceY", 3, 2, 3, 1, Q("20.7 mm")))
sketch15.addConstraint(Sketcher.Constraint("DistanceX", -1, 1, 2, 2, Q("14.75 mm")))
pad9 = body.newObject("PartDesign::Pad", "Pad008")
pad9.Profile = sketch15
pad9.Length = 3
pad9.Reversed = True

doc.recompute()
